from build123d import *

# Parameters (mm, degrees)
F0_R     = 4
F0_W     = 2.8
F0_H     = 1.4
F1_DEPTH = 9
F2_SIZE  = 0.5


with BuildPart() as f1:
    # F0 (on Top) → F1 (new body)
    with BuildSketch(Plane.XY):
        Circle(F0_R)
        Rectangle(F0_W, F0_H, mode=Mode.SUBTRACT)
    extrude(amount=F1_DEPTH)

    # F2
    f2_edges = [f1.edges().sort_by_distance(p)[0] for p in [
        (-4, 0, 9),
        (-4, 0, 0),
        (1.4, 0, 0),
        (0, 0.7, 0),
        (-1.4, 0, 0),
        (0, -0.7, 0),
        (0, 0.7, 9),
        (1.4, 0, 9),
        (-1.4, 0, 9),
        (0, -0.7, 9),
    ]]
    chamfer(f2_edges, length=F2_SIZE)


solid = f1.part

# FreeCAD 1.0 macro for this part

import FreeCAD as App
import Part
import Sketcher


def edges_at(feature, points):
    """Names of the edges that pass closest to the given points."""
    edges = feature.Shape.Edges
    near = lambda p: min(range(len(edges)), key=lambda i: edges[i].distToShape(Part.Vertex(*p))[0])
    return sorted({f"Edge{near(p) + 1}" for p in points})


def add_polygon(sketch, points):
    """Adds a closed chain of lines whose ends are joined by coincident constraints."""
    first, n = sketch.GeometryCount, len(points)
    for a, b in zip(points, points[1:] + points[:1]):
        sketch.addGeometry(Part.LineSegment(App.Vector(*a, 0), App.Vector(*b, 0)), False)
    for i in range(n):
        sketch.addConstraint(Sketcher.Constraint("Coincident", first + i, 2, first + (i + 1) % n, 1))

doc = App.newDocument("Part")
body = doc.addObject("PartDesign::Body", "Body")

sketch1 = body.newObject("Sketcher::SketchObject", "Sketch")
sketch1.AttachmentSupport = (doc.getObject("XY_Plane"), [""])
sketch1.MapMode = "FlatFace"
sketch1.addGeometry(Part.Circle(App.Vector(0, 0, 0), App.Vector(0, 0, 1), 4), False)
add_polygon(sketch1, [(1.4, -0.7), (-1.4, -0.7), (-1.4, 0.7), (1.4, 0.7)])
sketch1.addConstraint(Sketcher.Constraint("Horizontal", 1))
sketch1.addConstraint(Sketcher.Constraint("Vertical", 2))
sketch1.addConstraint(Sketcher.Constraint("Horizontal", 3))
sketch1.addConstraint(Sketcher.Constraint("Vertical", 4))
sketch1.addConstraint(Sketcher.Constraint("Coincident", 0, 3, -1, 1))
sketch1.addConstraint(Sketcher.Constraint("Symmetric", 1, 2, 3, 2, -1, 1))
sketch1.addConstraint(Sketcher.Constraint("Diameter", 0, 8.0))
sketch1.addConstraint(Sketcher.Constraint("DistanceX", 1, 2, 1, 1, 2.8))
sketch1.addConstraint(Sketcher.Constraint("DistanceY", 2, 1, 2, 2, 1.4))
pad1 = body.newObject("PartDesign::Pad", "Pad")
pad1.Profile = sketch1
pad1.Length = 9
doc.recompute()

chamfer = body.newObject("PartDesign::Chamfer", "Chamfer")
chamfer.Base = (pad1, edges_at(pad1, [
    (-4, 0, 9),
    (-4, 0, 0),
    (1.4, 0, 0),
    (0, 0.7, 0),
    (-1.4, 0, 0),
    (0, -0.7, 0),
    (0, 0.7, 9),
    (1.4, 0, 9),
    (-1.4, 0, 9),
    (0, -0.7, 9),
]))
chamfer.Size = 0.5

doc.recompute()
